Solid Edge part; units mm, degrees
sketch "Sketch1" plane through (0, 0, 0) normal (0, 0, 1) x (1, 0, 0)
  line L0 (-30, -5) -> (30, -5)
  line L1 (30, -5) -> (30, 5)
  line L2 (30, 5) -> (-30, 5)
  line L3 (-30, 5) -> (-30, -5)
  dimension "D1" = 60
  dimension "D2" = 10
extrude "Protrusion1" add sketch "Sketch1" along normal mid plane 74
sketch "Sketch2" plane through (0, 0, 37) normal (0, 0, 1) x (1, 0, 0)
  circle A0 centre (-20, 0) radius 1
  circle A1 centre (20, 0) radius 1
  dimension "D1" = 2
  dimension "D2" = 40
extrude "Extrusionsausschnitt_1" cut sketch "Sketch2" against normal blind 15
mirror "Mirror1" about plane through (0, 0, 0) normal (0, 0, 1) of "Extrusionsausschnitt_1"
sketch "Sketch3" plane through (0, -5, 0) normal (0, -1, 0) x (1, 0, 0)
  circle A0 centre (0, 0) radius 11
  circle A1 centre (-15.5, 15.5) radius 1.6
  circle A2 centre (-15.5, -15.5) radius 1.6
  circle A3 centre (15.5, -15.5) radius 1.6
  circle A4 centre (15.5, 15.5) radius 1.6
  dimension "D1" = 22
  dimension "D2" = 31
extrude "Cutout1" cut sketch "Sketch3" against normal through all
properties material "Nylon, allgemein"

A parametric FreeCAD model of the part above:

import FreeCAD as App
import Part
import Sketcher

doc = App.newDocument("Part")
params = doc.addObject("Spreadsheet::Sheet", "Params")
for row, (alias, value) in enumerate([
    ("sketch1_height", "10 mm"),
    ("pad1_length", "74 mm"),
    ("sketch2_diameter", "2 mm"),
    ("pocket1_length", "15 mm"),
    ("sketch3_diameter", "22 mm"),
    ("sketch3_diameter2", "3.2 mm"),
], start=1):
    params.set(f"A{row}", alias)
    params.set(f"B{row}", "=" + value)
    params.setAlias(f"B{row}", alias)

body = doc.addObject("PartDesign::Body", "Body")

# Sketch on XY plane
sketch1 = body.newObject("Sketcher::SketchObject", "Sketch")
sketch1.AttachmentSupport = (doc.getObject("XY_Plane"), [""])
sketch1.MapMode = "FlatFace"
sketch1.addGeometry([
    Part.LineSegment(App.Vector(-30, 5, 0), App.Vector(-30, -5, 0)),
    Part.LineSegment(App.Vector(-30, -5, 0), App.Vector(30, -5, 0)),
    Part.LineSegment(App.Vector(30, -5, 0), App.Vector(30, 5, 0)),
    Part.LineSegment(App.Vector(30, 5, 0), App.Vector(-30, 5, 0)),
], False)
sketch1.addConstraint([
    Sketcher.Constraint("Coincident", 0, 2, 1, 1),
    Sketcher.Constraint("Coincident", 1, 2, 2, 1),
    Sketcher.Constraint("Coincident", 2, 2, 3, 1),
    Sketcher.Constraint("Coincident", 3, 2, 0, 1),
    Sketcher.Constraint("Vertical", 0),
    Sketcher.Constraint("Horizontal", 1),
    Sketcher.Constraint("Vertical", 2),
    Sketcher.Constraint("Horizontal", 3),
    Sketcher.Constraint("Symmetric", 0, 2, 2, 2, -1, 1),
    Sketcher.Constraint("DistanceX", 0, 2, -1, 1, 30.0),
    Sketcher.Constraint("DistanceY", 0, 2, 0, 1, 10.0),
])
sketch1.setExpression("Constraints[10]", "Params.sketch1_height")
pad1 = body.newObject("PartDesign::Pad", "Pad")
pad1.Profile = sketch1
pad1.setExpression("Length", "Params.pad1_length")
pad1.Midplane = True

# Sketch on XY plane
sketch2 = body.newObject("Sketcher::SketchObject", "Sketch001")
sketch2.AttachmentSupport = (doc.getObject("XY_Plane"), [""])
sketch2.MapMode = "FlatFace"
sketch2.AttachmentOffset = App.Placement(App.Vector(0, 0, 37), App.Rotation())
sketch2.addGeometry([
    Part.Circle(App.Vector(-20, 0, 0), App.Vector(0, 0, 1), 1),
    Part.Circle(App.Vector(20, 0, 0), App.Vector(0, 0, 1), 1),
], False)
sketch2.addConstraint([
    Sketcher.Constraint("Equal", 0, 1),
    Sketcher.Constraint("Symmetric", 0, 3, 1, 3, -1, 1),
    Sketcher.Constraint("PointOnObject", 0, 3, -1),
    Sketcher.Constraint("Diameter", 0, 2.0),
    Sketcher.Constraint("DistanceX", 0, 3, -1, 1, 20.0),
])
sketch2.setExpression("Constraints[3]", "Params.sketch2_diameter")
pocket1 = body.newObject("PartDesign::Pocket", "Pocket")
pocket1.Profile = sketch2
pocket1.setExpression("Length", "Params.pocket1_length")
doc.recompute()

mirrored = body.newObject("PartDesign::Mirrored", "Mirrored")
mirrored.Originals = [pocket1]
mirrored.MirrorPlane = (doc.getObject("XY_Plane"), [""])
body.Tip = mirrored

# Sketch on XZ plane
sketch3 = body.newObject("Sketcher::SketchObject", "Sketch002")
sketch3.AttachmentSupport = (doc.getObject("XZ_Plane"), [""])
sketch3.MapMode = "FlatFace"
sketch3.AttachmentOffset = App.Placement(App.Vector(0, 0, 5), App.Rotation())
sketch3.addGeometry([
    Part.Circle(App.Vector(0, 0, 0), App.Vector(0, 0, 1), 11),  # 0
    Part.Circle(App.Vector(-15.5, 15.5, 0), App.Vector(0, 0, 1), 1.6),  # 1
    Part.Circle(App.Vector(-15.5, -15.5, 0), App.Vector(0, 0, 1), 1.6),  # 2
    Part.Circle(App.Vector(15.5, -15.5, 0), App.Vector(0, 0, 1), 1.6),  # 3
    Part.Circle(App.Vector(15.5, 15.5, 0), App.Vector(0, 0, 1), 1.6),  # 4
], False)
sketch3.addConstraint([
    Sketcher.Constraint("Coincident", 0, 3, -1, 1),
    Sketcher.Constraint("Equal", 1, 2),
    Sketcher.Constraint("Equal", 2, 3),
    Sketcher.Constraint("Equal", 3, 4),
    Sketcher.Constraint("Symmetric", 1, 3, 3, 3, -1, 1),
    Sketcher.Constraint("Symmetric", 2, 3, 4, 3, -1, 1),
    Sketcher.Constraint("Symmetric", 2, 3, 3, 3, -2),
    Sketcher.Constraint("Diameter", 0, 22.0),
    Sketcher.Constraint("Diameter", 1, 3.2),
    Sketcher.Constraint("DistanceY", 2, 3, 1, 3, 31.0),
    Sketcher.Constraint("DistanceX", 2, 3, 3, 3, 31.0),
])
sketch3.setExpression("Constraints[7]", "Params.sketch3_diameter")
sketch3.setExpression("Constraints[8]", "Params.sketch3_diameter2")
pocket2 = body.newObject("PartDesign::Pocket", "Pocket001")
pocket2.Profile = sketch3
pocket2.Type = "ThroughAll"

doc.recompute()
